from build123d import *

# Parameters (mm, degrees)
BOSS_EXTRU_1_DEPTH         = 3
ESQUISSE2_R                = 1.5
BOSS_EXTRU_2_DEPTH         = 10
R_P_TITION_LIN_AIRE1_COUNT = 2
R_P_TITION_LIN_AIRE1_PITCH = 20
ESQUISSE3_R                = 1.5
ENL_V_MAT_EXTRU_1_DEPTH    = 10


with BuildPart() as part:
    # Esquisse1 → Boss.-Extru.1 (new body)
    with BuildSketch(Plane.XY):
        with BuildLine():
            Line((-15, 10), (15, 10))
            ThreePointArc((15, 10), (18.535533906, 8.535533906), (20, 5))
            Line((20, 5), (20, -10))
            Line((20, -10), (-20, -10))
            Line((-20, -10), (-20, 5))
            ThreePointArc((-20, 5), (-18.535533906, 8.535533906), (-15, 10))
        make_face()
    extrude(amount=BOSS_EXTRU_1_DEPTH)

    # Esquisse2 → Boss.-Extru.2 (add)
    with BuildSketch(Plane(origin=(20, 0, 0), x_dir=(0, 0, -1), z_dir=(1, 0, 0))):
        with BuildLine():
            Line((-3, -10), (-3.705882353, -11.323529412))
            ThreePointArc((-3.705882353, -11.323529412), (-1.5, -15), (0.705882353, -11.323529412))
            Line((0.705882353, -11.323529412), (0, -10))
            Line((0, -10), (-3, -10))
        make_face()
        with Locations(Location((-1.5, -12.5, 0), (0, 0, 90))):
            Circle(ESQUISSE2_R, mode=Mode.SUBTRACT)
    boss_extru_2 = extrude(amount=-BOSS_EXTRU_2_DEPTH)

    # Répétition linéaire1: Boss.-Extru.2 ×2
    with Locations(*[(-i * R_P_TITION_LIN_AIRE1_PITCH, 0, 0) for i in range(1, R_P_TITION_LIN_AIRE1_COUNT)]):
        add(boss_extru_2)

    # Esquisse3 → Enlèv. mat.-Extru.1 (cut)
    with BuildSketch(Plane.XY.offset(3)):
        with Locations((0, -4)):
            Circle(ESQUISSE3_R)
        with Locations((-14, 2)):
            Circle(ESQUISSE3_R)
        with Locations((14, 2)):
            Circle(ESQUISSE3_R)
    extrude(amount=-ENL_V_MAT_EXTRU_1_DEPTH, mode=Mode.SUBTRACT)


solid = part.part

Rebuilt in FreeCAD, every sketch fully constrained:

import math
import FreeCAD as App
import Part
import Sketcher
from FreeCAD import Vector

doc = App.newDocument("Part")
body = doc.addObject("PartDesign::Body", "Body")

# Sketch on XY plane
sketch1 = body.newObject("Sketcher::SketchObject", "Sketch")
sketch1.AttachmentSupport = (doc.getObject("XY_Plane"), [""])
sketch1.MapMode = "FlatFace"
sketch1.addGeometry(Part.LineSegment(Vector(15, 10, 0), Vector(-15, 10, 0)), False)
sketch1.addGeometry(Part.ArcOfCircle(Part.Circle(Vector(-15, 5, 0), Vector(0, 0, 1), 5), math.radians(90), math.radians(180)), False)
sketch1.addGeometry(Part.LineSegment(Vector(-20, 5, 0), Vector(-20, -10, 0)), False)
sketch1.addGeometry(Part.LineSegment(Vector(-20, -10, 0), Vector(20, -10, 0)), False)
sketch1.addGeometry(Part.LineSegment(Vector(20, -10, 0), Vector(20, 5, 0)), False)
sketch1.addGeometry(Part.ArcOfCircle(Part.Circle(Vector(15, 5, 0), Vector(0, 0, 1), 5), math.radians(0), math.radians(90)), False)
sketch1.addConstraint(Sketcher.Constraint("Tangent", 0, 2, 1, 1))
sketch1.addConstraint(Sketcher.Constraint("Tangent", 1, 2, 2, 1))
sketch1.addConstraint(Sketcher.Constraint("Coincident", 2, 2, 3, 1))
sketch1.addConstraint(Sketcher.Constraint("Coincident", 3, 2, 4, 1))
sketch1.addConstraint(Sketcher.Constraint("Tangent", 4, 2, 5, 1))
sketch1.addConstraint(Sketcher.Constraint("Tangent", 5, 2, 0, 1))
sketch1.addConstraint(Sketcher.Constraint("Horizontal", 0))
sketch1.addConstraint(Sketcher.Constraint("Vertical", 2))
sketch1.addConstraint(Sketcher.Constraint("Horizontal", 3))
sketch1.addConstraint(Sketcher.Constraint("Vertical", 4))
sketch1.addConstraint(Sketcher.Constraint("Equal", 1, 5))
sketch1.addConstraint(Sketcher.Constraint("Radius", 1, 5.0))
sketch1.addConstraint(Sketcher.Constraint("DistanceX", 0, 2, 0, 1, 30.0))
sketch1.addConstraint(Sketcher.Constraint("DistanceY", 2, 2, 2, 1, 15.0))
sketch1.addConstraint(Sketcher.Constraint("DistanceX", 1, 3, -1, 1, 15.0))
sketch1.addConstraint(Sketcher.Constraint("DistanceY", -1, 1, 1, 3, 5.0))
pad1 = body.newObject("PartDesign::Pad", "Pad")
pad1.Profile = sketch1
pad1.Length = 3

# Sketch on YZ plane
sketch2 = body.newObject("Sketcher::SketchObject", "Sketch001")
sketch2.AttachmentSupport = (doc.getObject("YZ_Plane"), [""])
sketch2.MapMode = "FlatFace"
sketch2.AttachmentOffset = App.Placement(Vector(0, 0, 20), App.Rotation())
sketch2.addGeometry(Part.LineSegment(Vector(-10, 3, 0), Vector(-11.3, 3.7, 0)), False)
sketch2.addGeometry(Part.ArcOfCircle(Part.Circle(Vector(-12.5, 1.5, 0), Vector(0, 0, 1), 2.5), math.radians(62), math.radians(298)), False)
sketch2.addGeometry(Part.LineSegment(Vector(-11.3, -0.7, 0), Vector(-10, 0, 0)), False)
sketch2.addGeometry(Part.LineSegment(Vector(-10, 0, 0), Vector(-10, 3, 0)), False)
sketch2.addGeometry(Part.Circle(Vector(-12.5, 1.5, 0), Vector(0, 0, 1), 1.5), False)
sketch2.addConstraint(Sketcher.Constraint("Tangent", 0, 2, 1, 1))
sketch2.addConstraint(Sketcher.Constraint("Tangent", 1, 2, 2, 1))
sketch2.addConstraint(Sketcher.Constraint("Coincident", 2, 2, 3, 1))
sketch2.addConstraint(Sketcher.Constraint("Coincident", 3, 2, 0, 1))
sketch2.addConstraint(Sketcher.Constraint("Vertical", 3))
sketch2.addConstraint(Sketcher.Constraint("Coincident", 4, 3, 1, 3))
sketch2.addConstraint(Sketcher.Constraint("PointOnObject", 2, 2, -1))
sketch2.addConstraint(Sketcher.Constraint("Vertical", 0, 2, 1, 2))
sketch2.addConstraint(Sketcher.Constraint("Diameter", 4, 3.0))
sketch2.addConstraint(Sketcher.Constraint("Radius", 1, 2.5))
sketch2.addConstraint(Sketcher.Constraint("DistanceY", 3, 1, 3, 2, 3.0))
sketch2.addConstraint(Sketcher.Constraint("DistanceX", 2, 2, -1, 1, 10.0))
sketch2.addConstraint(Sketcher.Constraint("Distance", 0, 1.5))
pad2 = body.newObject("PartDesign::Pad", "Pad001")
pad2.Profile = sketch2
pad2.Length = 10
pad2.Reversed = True
doc.recompute()

linearpattern = body.newObject("PartDesign::LinearPattern", "LinearPattern")
linearpattern.Originals = [pad2]
linearpattern.Direction = (doc.getObject("X_Axis"), [""])
linearpattern.Mode = "offset"
linearpattern.Offset = 20
linearpattern.Occurrences = 2
linearpattern.Reversed = True
body.Tip = linearpattern

# Sketch on XY plane
sketch3 = body.newObject("Sketcher::SketchObject", "Sketch002")
sketch3.AttachmentSupport = (doc.getObject("XY_Plane"), [""])
sketch3.MapMode = "FlatFace"
sketch3.AttachmentOffset = App.Placement(Vector(0, 0, 3), App.Rotation())
sketch3.addGeometry(Part.Circle(Vector(0, -4, 0), Vector(0, 0, 1), 1.5), False)
sketch3.addGeometry(Part.Circle(Vector(-14, 2, 0), Vector(0, 0, 1), 1.5), False)
sketch3.addGeometry(Part.Circle(Vector(14, 2, 0), Vector(0, 0, 1), 1.5), False)
sketch3.addConstraint(Sketcher.Constraint("Equal", 0, 1))
sketch3.addConstraint(Sketcher.Constraint("Equal", 1, 2))
sketch3.addConstraint(Sketcher.Constraint("Symmetric", 1, 3, 2, 3, -2))
sketch3.addConstraint(Sketcher.Constraint("PointOnObject", 0, 3, -2))
sketch3.addConstraint(Sketcher.Constraint("Diameter", 0, 3.0))
sketch3.addConstraint(Sketcher.Constraint("DistanceY", 0, 3, -1, 1, 4.0))
sketch3.addConstraint(Sketcher.Constraint("DistanceX", 1, 3, -1, 1, 14.0))
sketch3.addConstraint(Sketcher.Constraint("DistanceY", -1, 1, 1, 3, 2.0))
pocket1 = body.newObject("PartDesign::Pocket", "Pocket")
pocket1.Profile = sketch3
pocket1.Length = 10

doc.recompute()
